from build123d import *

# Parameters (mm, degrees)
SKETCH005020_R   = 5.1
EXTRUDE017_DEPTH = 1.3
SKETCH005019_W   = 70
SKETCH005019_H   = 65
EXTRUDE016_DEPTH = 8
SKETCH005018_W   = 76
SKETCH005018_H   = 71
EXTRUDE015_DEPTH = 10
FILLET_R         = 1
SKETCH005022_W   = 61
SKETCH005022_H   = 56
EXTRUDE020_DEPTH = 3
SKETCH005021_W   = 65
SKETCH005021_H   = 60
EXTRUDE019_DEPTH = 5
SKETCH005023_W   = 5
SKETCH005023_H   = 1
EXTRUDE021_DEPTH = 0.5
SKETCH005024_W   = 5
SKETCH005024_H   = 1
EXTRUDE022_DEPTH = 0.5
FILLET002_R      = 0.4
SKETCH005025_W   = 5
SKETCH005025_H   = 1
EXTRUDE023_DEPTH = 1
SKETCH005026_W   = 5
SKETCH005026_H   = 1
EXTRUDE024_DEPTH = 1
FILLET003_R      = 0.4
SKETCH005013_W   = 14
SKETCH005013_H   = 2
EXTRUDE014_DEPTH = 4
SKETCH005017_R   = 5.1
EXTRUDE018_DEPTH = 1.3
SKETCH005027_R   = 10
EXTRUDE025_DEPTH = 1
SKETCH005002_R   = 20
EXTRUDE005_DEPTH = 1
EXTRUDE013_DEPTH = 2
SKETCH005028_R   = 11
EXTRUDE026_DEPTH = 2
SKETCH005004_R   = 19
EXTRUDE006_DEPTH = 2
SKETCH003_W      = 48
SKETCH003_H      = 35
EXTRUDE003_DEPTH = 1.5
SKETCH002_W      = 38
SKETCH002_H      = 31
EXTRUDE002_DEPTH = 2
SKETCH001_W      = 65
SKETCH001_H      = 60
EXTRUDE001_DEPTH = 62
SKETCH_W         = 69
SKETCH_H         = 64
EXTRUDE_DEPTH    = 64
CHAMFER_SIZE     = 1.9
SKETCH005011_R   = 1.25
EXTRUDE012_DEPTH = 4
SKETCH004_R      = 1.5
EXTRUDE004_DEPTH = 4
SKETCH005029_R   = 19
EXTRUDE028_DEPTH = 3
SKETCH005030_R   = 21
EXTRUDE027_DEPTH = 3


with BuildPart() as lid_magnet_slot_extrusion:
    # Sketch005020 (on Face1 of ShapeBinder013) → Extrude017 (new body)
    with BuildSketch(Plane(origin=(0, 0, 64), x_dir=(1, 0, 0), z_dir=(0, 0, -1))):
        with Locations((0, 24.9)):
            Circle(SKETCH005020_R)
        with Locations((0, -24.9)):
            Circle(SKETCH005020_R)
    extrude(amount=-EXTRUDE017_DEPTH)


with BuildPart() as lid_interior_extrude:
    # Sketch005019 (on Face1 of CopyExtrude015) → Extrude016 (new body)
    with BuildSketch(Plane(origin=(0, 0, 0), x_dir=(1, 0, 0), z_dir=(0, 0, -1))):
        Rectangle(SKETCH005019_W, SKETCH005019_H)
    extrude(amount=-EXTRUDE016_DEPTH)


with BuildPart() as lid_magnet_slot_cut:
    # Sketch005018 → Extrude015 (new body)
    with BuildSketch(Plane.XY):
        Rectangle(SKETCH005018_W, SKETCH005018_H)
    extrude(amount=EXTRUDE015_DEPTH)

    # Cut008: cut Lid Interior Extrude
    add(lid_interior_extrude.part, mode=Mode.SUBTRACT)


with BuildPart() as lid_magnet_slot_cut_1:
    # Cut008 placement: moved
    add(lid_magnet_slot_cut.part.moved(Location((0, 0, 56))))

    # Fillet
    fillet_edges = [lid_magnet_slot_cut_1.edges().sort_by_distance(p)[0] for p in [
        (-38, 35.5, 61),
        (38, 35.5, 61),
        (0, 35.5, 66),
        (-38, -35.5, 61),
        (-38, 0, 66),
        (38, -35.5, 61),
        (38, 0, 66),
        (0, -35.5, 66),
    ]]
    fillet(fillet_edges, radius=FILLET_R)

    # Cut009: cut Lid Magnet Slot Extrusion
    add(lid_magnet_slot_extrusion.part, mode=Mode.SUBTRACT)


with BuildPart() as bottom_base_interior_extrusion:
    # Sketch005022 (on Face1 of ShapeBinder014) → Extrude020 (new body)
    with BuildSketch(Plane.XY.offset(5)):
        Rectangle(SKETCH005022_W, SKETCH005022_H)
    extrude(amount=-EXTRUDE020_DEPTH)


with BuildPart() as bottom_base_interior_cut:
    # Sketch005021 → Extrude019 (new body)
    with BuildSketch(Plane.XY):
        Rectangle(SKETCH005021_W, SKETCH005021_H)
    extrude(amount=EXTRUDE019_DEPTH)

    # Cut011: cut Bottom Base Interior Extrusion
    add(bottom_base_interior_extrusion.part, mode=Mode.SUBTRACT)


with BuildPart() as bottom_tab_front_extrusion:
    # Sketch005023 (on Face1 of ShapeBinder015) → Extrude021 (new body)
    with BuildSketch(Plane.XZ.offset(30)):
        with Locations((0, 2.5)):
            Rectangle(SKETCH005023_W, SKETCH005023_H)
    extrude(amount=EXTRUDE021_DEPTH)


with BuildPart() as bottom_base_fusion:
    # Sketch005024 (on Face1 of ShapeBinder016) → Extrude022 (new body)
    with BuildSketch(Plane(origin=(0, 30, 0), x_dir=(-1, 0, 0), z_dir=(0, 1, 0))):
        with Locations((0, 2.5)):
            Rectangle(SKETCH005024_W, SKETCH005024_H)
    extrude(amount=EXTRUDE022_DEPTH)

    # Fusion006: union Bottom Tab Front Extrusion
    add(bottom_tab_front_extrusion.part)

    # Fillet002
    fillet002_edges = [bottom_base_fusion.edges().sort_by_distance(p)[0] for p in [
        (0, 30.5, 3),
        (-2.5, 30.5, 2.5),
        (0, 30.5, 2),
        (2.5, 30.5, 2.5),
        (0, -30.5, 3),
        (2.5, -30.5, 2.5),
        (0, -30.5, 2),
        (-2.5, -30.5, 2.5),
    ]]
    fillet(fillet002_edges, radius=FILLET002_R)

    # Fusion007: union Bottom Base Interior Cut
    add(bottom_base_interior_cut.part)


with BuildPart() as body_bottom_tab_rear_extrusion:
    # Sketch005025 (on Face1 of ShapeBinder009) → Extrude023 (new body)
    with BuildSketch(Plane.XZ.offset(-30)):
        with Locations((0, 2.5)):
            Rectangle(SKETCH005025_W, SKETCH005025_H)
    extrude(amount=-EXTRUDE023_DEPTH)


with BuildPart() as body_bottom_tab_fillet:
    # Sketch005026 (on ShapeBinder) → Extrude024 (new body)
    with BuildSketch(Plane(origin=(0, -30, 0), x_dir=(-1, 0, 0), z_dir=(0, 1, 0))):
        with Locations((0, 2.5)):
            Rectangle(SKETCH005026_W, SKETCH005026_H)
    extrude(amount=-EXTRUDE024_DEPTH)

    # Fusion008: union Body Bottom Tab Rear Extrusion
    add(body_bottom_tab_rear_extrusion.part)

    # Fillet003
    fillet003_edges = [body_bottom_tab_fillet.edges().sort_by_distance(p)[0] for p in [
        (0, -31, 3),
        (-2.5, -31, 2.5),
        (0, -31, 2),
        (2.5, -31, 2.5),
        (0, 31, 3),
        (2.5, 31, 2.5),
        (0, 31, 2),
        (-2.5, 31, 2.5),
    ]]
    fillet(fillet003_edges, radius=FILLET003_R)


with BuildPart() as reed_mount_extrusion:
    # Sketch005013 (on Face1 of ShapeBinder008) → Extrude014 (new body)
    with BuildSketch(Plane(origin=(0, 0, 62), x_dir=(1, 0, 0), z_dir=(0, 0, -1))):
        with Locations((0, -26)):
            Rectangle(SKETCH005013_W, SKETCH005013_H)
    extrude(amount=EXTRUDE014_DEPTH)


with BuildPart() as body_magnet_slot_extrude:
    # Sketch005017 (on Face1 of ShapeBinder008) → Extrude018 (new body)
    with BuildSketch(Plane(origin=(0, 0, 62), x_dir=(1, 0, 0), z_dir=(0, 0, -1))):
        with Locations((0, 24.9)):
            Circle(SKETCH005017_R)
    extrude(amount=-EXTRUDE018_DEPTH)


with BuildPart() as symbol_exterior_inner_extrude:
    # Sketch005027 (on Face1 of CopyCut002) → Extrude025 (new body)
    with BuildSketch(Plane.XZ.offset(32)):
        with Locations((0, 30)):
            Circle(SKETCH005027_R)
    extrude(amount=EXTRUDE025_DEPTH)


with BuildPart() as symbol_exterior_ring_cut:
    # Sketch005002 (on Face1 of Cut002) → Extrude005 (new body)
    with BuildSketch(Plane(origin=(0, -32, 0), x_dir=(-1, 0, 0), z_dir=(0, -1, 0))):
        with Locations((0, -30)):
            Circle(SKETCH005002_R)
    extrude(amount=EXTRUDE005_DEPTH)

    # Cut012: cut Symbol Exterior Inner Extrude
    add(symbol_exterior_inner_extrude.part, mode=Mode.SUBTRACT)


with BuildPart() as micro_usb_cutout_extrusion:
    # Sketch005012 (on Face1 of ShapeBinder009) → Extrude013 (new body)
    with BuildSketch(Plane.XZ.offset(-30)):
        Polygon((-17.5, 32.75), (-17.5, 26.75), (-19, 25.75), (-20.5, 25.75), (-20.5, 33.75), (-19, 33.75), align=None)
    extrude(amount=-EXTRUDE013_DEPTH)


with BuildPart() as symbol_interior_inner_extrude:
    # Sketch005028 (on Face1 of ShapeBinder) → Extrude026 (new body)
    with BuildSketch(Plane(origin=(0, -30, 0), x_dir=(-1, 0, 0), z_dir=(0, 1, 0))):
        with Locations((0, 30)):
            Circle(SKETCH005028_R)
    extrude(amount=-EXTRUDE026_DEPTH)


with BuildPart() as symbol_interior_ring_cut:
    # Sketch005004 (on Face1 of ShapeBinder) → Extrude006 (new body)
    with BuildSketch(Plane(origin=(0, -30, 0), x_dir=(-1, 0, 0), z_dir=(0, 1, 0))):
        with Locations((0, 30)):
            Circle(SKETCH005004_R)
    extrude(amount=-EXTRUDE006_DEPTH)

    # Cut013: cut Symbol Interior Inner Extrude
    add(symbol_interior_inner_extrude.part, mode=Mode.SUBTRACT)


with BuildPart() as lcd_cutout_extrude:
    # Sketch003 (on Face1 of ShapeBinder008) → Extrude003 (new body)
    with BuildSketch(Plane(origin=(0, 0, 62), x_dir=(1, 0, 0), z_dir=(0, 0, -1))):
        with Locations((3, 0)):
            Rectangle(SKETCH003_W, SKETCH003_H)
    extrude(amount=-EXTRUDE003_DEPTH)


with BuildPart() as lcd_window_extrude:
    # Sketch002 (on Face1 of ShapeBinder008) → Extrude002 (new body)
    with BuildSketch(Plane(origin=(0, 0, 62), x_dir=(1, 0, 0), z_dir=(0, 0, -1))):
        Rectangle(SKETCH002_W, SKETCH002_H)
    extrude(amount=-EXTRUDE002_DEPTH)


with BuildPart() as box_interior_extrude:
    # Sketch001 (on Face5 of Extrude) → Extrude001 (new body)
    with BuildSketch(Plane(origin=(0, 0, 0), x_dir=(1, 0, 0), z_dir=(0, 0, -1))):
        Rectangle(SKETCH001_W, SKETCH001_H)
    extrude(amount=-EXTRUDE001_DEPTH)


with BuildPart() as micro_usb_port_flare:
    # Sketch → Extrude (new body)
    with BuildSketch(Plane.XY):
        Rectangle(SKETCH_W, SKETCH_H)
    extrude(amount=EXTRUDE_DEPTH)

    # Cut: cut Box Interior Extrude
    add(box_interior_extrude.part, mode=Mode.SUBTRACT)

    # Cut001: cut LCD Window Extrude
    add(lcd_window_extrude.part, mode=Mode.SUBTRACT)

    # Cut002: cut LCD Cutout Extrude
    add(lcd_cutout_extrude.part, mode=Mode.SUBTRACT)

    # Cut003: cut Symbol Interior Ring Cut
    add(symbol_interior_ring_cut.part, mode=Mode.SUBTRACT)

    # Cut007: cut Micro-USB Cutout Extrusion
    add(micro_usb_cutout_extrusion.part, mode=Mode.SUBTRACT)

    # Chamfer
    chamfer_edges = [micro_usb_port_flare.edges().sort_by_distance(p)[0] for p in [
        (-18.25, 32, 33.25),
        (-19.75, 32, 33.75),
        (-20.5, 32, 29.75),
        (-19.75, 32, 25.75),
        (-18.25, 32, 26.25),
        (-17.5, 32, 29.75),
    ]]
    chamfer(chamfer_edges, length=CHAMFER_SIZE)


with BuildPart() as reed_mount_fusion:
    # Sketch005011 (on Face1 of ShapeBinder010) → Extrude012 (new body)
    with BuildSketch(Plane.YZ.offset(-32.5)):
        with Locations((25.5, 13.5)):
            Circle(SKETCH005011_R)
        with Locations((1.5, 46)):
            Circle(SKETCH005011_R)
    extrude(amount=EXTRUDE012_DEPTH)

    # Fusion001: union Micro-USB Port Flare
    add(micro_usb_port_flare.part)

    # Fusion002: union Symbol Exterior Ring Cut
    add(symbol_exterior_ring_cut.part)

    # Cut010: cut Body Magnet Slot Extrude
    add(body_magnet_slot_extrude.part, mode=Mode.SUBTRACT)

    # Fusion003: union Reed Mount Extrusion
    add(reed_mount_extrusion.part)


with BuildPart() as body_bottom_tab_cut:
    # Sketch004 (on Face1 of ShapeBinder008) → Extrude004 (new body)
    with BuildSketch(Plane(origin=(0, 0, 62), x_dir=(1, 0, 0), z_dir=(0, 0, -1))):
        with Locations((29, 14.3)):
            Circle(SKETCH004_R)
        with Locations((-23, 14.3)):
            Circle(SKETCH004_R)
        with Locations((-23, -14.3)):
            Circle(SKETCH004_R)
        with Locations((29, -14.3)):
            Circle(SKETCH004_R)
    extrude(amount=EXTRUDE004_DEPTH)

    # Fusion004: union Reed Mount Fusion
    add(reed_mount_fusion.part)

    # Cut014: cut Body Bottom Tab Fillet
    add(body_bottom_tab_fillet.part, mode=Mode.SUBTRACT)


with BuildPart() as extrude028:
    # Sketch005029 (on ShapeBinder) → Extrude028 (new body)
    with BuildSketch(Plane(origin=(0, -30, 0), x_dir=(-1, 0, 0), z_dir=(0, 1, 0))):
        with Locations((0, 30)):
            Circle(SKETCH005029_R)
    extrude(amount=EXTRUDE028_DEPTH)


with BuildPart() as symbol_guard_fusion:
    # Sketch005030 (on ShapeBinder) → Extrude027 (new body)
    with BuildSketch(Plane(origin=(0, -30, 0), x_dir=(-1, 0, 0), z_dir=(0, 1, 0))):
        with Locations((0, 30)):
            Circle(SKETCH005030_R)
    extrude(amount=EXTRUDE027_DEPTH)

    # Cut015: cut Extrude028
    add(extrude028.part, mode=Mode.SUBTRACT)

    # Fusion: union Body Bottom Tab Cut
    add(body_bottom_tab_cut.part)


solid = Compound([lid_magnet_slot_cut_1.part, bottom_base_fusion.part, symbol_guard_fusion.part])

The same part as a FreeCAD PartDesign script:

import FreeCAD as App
import Part
import Sketcher


def edges_at(feature, points):
    """Names of the edges that pass closest to the given points."""
    edges = feature.Shape.Edges
    near = lambda p: min(range(len(edges)), key=lambda i: edges[i].distToShape(Part.Vertex(*p))[0])
    return sorted({f"Edge{near(p) + 1}" for p in points})

doc = App.newDocument("Part")
body = doc.addObject("PartDesign::Body", "Body")
body.AllowCompound = True

# Sketch on XY plane
sketch1 = body.newObject("Sketcher::SketchObject", "Sketch")
sketch1.AttachmentSupport = (doc.getObject("XY_Plane"), [""])
sketch1.MapMode = "FlatFace"
sketch1.AttachmentOffset = App.Placement(App.Vector(0, 0, 64), App.Rotation())
sketch1.addGeometry([
    Part.Circle(App.Vector(0, -24.9, 0), App.Vector(0, 0, 1), 5.1),
    Part.Circle(App.Vector(0, 24.9, 0), App.Vector(0, 0, 1), 5.1),
], False)
sketch1.addConstraint([
    Sketcher.Constraint("Equal", 0, 1),
    Sketcher.Constraint("Symmetric", 0, 3, 1, 3, -1, 1),
    Sketcher.Constraint("PointOnObject", 0, 3, -2),
    Sketcher.Constraint("Diameter", 0, 10.2),
    Sketcher.Constraint("DistanceY", 0, 3, -1, 1, 24.9),
])
pad1 = body.newObject("PartDesign::Pad", "Pad")
pad1.Profile = sketch1
pad1.Length = 1.3
body2 = doc.addObject("PartDesign::Body", "Body001")

# Sketch on XY plane
sketch2 = body2.newObject("Sketcher::SketchObject", "Sketch001")
sketch2.AttachmentSupport = (doc.getObject("XY_Plane001"), [""])
sketch2.MapMode = "FlatFace"
sketch2.addGeometry([
    Part.LineSegment(App.Vector(-35, -32.5, 0), App.Vector(-35, 32.5, 0)),
    Part.LineSegment(App.Vector(-35, 32.5, 0), App.Vector(35, 32.5, 0)),
    Part.LineSegment(App.Vector(35, 32.5, 0), App.Vector(35, -32.5, 0)),
    Part.LineSegment(App.Vector(35, -32.5, 0), App.Vector(-35, -32.5, 0)),
], False)
sketch2.addConstraint([
    Sketcher.Constraint("Coincident", 0, 2, 1, 1),
    Sketcher.Constraint("Coincident", 1, 2, 2, 1),
    Sketcher.Constraint("Coincident", 2, 2, 3, 1),
    Sketcher.Constraint("Coincident", 3, 2, 0, 1),
    Sketcher.Constraint("Vertical", 0),
    Sketcher.Constraint("Horizontal", 1),
    Sketcher.Constraint("Vertical", 2),
    Sketcher.Constraint("Horizontal", 3),
    Sketcher.Constraint("Symmetric", 0, 2, 2, 2, -1, 1),
    Sketcher.Constraint("DistanceX", 1, 1, 1, 2, 70.0),
    Sketcher.Constraint("DistanceY", 0, 1, 0, 2, 65.0),
])
pad2 = body2.newObject("PartDesign::Pad", "Pad001")
pad2.Profile = sketch2
pad2.Length = 8
body3 = doc.addObject("PartDesign::Body", "Body002")

# Sketch on XY plane
sketch3 = body3.newObject("Sketcher::SketchObject", "Sketch002")
sketch3.AttachmentSupport = (doc.getObject("XY_Plane002"), [""])
sketch3.MapMode = "FlatFace"
sketch3.addGeometry([
    Part.LineSegment(App.Vector(-38, 35.5, 0), App.Vector(-38, -35.5, 0)),
    Part.LineSegment(App.Vector(-38, -35.5, 0), App.Vector(38, -35.5, 0)),
    Part.LineSegment(App.Vector(38, -35.5, 0), App.Vector(38, 35.5, 0)),
    Part.LineSegment(App.Vector(38, 35.5, 0), App.Vector(-38, 35.5, 0)),
], False)
sketch3.addConstraint([
    Sketcher.Constraint("Coincident", 0, 2, 1, 1),
    Sketcher.Constraint("Coincident", 1, 2, 2, 1),
    Sketcher.Constraint("Coincident", 2, 2, 3, 1),
    Sketcher.Constraint("Coincident", 3, 2, 0, 1),
    Sketcher.Constraint("Vertical", 0),
    Sketcher.Constraint("Horizontal", 1),
    Sketcher.Constraint("Vertical", 2),
    Sketcher.Constraint("Horizontal", 3),
    Sketcher.Constraint("Symmetric", 0, 2, 2, 2, -1, 1),
    Sketcher.Constraint("DistanceX", 1, 1, 1, 2, 76.0),
    Sketcher.Constraint("DistanceY", 0, 2, 0, 1, 71.0),
])
pad3 = body3.newObject("PartDesign::Pad", "Pad002")
pad3.Profile = sketch3
pad3.Length = 10
doc.recompute()

boolean = body3.newObject("PartDesign::Boolean", "Boolean")
boolean.Type = "Cut"
boolean.addObjects([body2])
body4 = doc.addObject("PartDesign::Body", "Body003")
doc.recompute()

body3.Placement = App.Placement(App.Vector(0, 0, 56), App.Rotation(App.Vector(0, 0, 1), 0))
boolean2 = body4.newObject("PartDesign::Boolean", "Boolean001")
boolean2.Type = "Fuse"
boolean2.addObjects([body3])
doc.recompute()

fillet = body4.newObject("PartDesign::Fillet", "Fillet")
fillet.Base = (boolean2, edges_at(boolean2, [
    (-38, 35.5, 61),
    (38, 35.5, 61),
    (0, 35.5, 66),
    (-38, -35.5, 61),
    (-38, 0, 66),
    (38, -35.5, 61),
    (38, 0, 66),
    (0, -35.5, 66),
]))
fillet.Radius = 1
doc.recompute()

boolean3 = body4.newObject("PartDesign::Boolean", "Boolean002")
boolean3.Type = "Cut"
boolean3.addObjects([body])
body5 = doc.addObject("PartDesign::Body", "Body004")

# Sketch on XY plane
sketch4 = body5.newObject("Sketcher::SketchObject", "Sketch003")
sketch4.AttachmentSupport = (doc.getObject("XY_Plane004"), [""])
sketch4.MapMode = "FlatFace"
sketch4.AttachmentOffset = App.Placement(App.Vector(0, 0, 5), App.Rotation())
sketch4.addGeometry([
    Part.LineSegment(App.Vector(-30.5, 28, 0), App.Vector(-30.5, -28, 0)),
    Part.LineSegment(App.Vector(-30.5, -28, 0), App.Vector(30.5, -28, 0)),
    Part.LineSegment(App.Vector(30.5, -28, 0), App.Vector(30.5, 28, 0)),
    Part.LineSegment(App.Vector(30.5, 28, 0), App.Vector(-30.5, 28, 0)),
], False)
sketch4.addConstraint([
    Sketcher.Constraint("Coincident", 0, 2, 1, 1),
    Sketcher.Constraint("Coincident", 1, 2, 2, 1),
    Sketcher.Constraint("Coincident", 2, 2, 3, 1),
    Sketcher.Constraint("Coincident", 3, 2, 0, 1),
    Sketcher.Constraint("Vertical", 0),
    Sketcher.Constraint("Horizontal", 1),
    Sketcher.Constraint("Vertical", 2),
    Sketcher.Constraint("Horizontal", 3),
    Sketcher.Constraint("Symmetric", 0, 2, 2, 2, -1, 1),
    Sketcher.Constraint("DistanceX", 1, 1, 1, 2, 61.0),
    Sketcher.Constraint("DistanceY", 0, 2, 0, 1, 56.0),
])
pad4 = body5.newObject("PartDesign::Pad", "Pad003")
pad4.Profile = sketch4
pad4.Length = 3
pad4.Reversed = True
body6 = doc.addObject("PartDesign::Body", "Body005")

# Sketch on XY plane
sketch5 = body6.newObject("Sketcher::SketchObject", "Sketch004")
sketch5.AttachmentSupport = (doc.getObject("XY_Plane005"), [""])
sketch5.MapMode = "FlatFace"
sketch5.addGeometry([
    Part.LineSegment(App.Vector(-32.5, 30, 0), App.Vector(-32.5, -30, 0)),
    Part.LineSegment(App.Vector(-32.5, -30, 0), App.Vector(32.5, -30, 0)),
    Part.LineSegment(App.Vector(32.5, -30, 0), App.Vector(32.5, 30, 0)),
    Part.LineSegment(App.Vector(32.5, 30, 0), App.Vector(-32.5, 30, 0)),
], False)
sketch5.addConstraint([
    Sketcher.Constraint("Coincident", 0, 2, 1, 1),
    Sketcher.Constraint("Coincident", 1, 2, 2, 1),
    Sketcher.Constraint("Coincident", 2, 2, 3, 1),
    Sketcher.Constraint("Coincident", 3, 2, 0, 1),
    Sketcher.Constraint("Vertical", 0),
    Sketcher.Constraint("Horizontal", 1),
    Sketcher.Constraint("Vertical", 2),
    Sketcher.Constraint("Horizontal", 3),
    Sketcher.Constraint("Symmetric", 0, 2, 2, 2, -1, 1),
    Sketcher.Constraint("DistanceX", 1, 1, 1, 2, 65.0),
    Sketcher.Constraint("DistanceY", 0, 2, 0, 1, 60.0),
])
pad5 = body6.newObject("PartDesign::Pad", "Pad004")
pad5.Profile = sketch5
pad5.Length = 5
doc.recompute()

boolean4 = body6.newObject("PartDesign::Boolean", "Boolean003")
boolean4.Type = "Cut"
boolean4.addObjects([body5])
body7 = doc.addObject("PartDesign::Body", "Body006")

# Sketch on XZ plane
sketch6 = body7.newObject("Sketcher::SketchObject", "Sketch005")
sketch6.AttachmentSupport = (doc.getObject("XZ_Plane006"), [""])
sketch6.MapMode = "FlatFace"
sketch6.AttachmentOffset = App.Placement(App.Vector(0, 0, 30), App.Rotation())
sketch6.addGeometry([
    Part.LineSegment(App.Vector(-2.5, 3, 0), App.Vector(-2.5, 2, 0)),
    Part.LineSegment(App.Vector(-2.5, 2, 0), App.Vector(2.5, 2, 0)),
    Part.LineSegment(App.Vector(2.5, 2, 0), App.Vector(2.5, 3, 0)),
    Part.LineSegment(App.Vector(2.5, 3, 0), App.Vector(-2.5, 3, 0)),
], False)
sketch6.addConstraint([
    Sketcher.Constraint("Coincident", 0, 2, 1, 1),
    Sketcher.Constraint("Coincident", 1, 2, 2, 1),
    Sketcher.Constraint("Coincident", 2, 2, 3, 1),
    Sketcher.Constraint("Coincident", 3, 2, 0, 1),
    Sketcher.Constraint("Vertical", 0),
    Sketcher.Constraint("Horizontal", 1),
    Sketcher.Constraint("Vertical", 2),
    Sketcher.Constraint("Horizontal", 3),
    Sketcher.Constraint("DistanceX", 1, 1, 1, 2, 5.0),
    Sketcher.Constraint("DistanceY", 0, 2, 0, 1, 1.0),
    Sketcher.Constraint("DistanceY", -1, 1, 0, 2, 2.0),
    Sketcher.Constraint("DistanceX", 0, 2, -1, 1, 2.5),
])
pad6 = body7.newObject("PartDesign::Pad", "Pad005")
pad6.Profile = sketch6
pad6.Length = 0.5
body8 = doc.addObject("PartDesign::Body", "Body007")
body8.AllowCompound = True

# Sketch on XZ plane
sketch7 = body8.newObject("Sketcher::SketchObject", "Sketch006")
sketch7.AttachmentSupport = (doc.getObject("XZ_Plane007"), [""])
sketch7.MapMode = "FlatFace"
sketch7.AttachmentOffset = App.Placement(App.Vector(0, 0, -30), App.Rotation())
sketch7.addGeometry([
    Part.LineSegment(App.Vector(2.5, 3, 0), App.Vector(2.5, 2, 0)),
    Part.LineSegment(App.Vector(2.5, 2, 0), App.Vector(-2.5, 2, 0)),
    Part.LineSegment(App.Vector(-2.5, 2, 0), App.Vector(-2.5, 3, 0)),
    Part.LineSegment(App.Vector(-2.5, 3, 0), App.Vector(2.5, 3, 0)),
], False)
sketch7.addConstraint([
    Sketcher.Constraint("Coincident", 0, 2, 1, 1),
    Sketcher.Constraint("Coincident", 1, 2, 2, 1),
    Sketcher.Constraint("Coincident", 2, 2, 3, 1),
    Sketcher.Constraint("Coincident", 3, 2, 0, 1),
    Sketcher.Constraint("Vertical", 0),
    Sketcher.Constraint("Horizontal", 1),
    Sketcher.Constraint("Vertical", 2),
    Sketcher.Constraint("Horizontal", 3),
    Sketcher.Constraint("DistanceX", 1, 2, 1, 1, 5.0),
    Sketcher.Constraint("DistanceY", 0, 2, 0, 1, 1.0),
    Sketcher.Constraint("DistanceY", -1, 1, 0, 2, 2.0),
    Sketcher.Constraint("DistanceX", -1, 1, 0, 2, 2.5),
])
pad7 = body8.newObject("PartDesign::Pad", "Pad006")
pad7.Profile = sketch7
pad7.Length = 0.5
pad7.Reversed = True
doc.recompute()

boolean5 = body8.newObject("PartDesign::Boolean", "Boolean004")
boolean5.Type = "Fuse"
boolean5.addObjects([body7])
doc.recompute()

fillet2 = body8.newObject("PartDesign::Fillet", "Fillet001")
fillet2.Base = (boolean5, edges_at(boolean5, [
    (0, 30.5, 3),
    (-2.5, 30.5, 2.5),
    (0, 30.5, 2),
    (2.5, 30.5, 2.5),
    (0, -30.5, 3),
    (2.5, -30.5, 2.5),
    (0, -30.5, 2),
    (-2.5, -30.5, 2.5),
]))
fillet2.Radius = 0.4
doc.recompute()

boolean6 = body8.newObject("PartDesign::Boolean", "Boolean005")
boolean6.Type = "Fuse"
boolean6.addObjects([body6])
body9 = doc.addObject("PartDesign::Body", "Body008")

# Sketch on XZ plane
sketch8 = body9.newObject("Sketcher::SketchObject", "Sketch007")
sketch8.AttachmentSupport = (doc.getObject("XZ_Plane008"), [""])
sketch8.MapMode = "FlatFace"
sketch8.AttachmentOffset = App.Placement(App.Vector(0, 0, -30), App.Rotation())
sketch8.addGeometry([
    Part.LineSegment(App.Vector(-2.5, 3, 0), App.Vector(-2.5, 2, 0)),
    Part.LineSegment(App.Vector(-2.5, 2, 0), App.Vector(2.5, 2, 0)),
    Part.LineSegment(App.Vector(2.5, 2, 0), App.Vector(2.5, 3, 0)),
    Part.LineSegment(App.Vector(2.5, 3, 0), App.Vector(-2.5, 3, 0)),
], False)
sketch8.addConstraint([
    Sketcher.Constraint("Coincident", 0, 2, 1, 1),
    Sketcher.Constraint("Coincident", 1, 2, 2, 1),
    Sketcher.Constraint("Coincident", 2, 2, 3, 1),
    Sketcher.Constraint("Coincident", 3, 2, 0, 1),
    Sketcher.Constraint("Vertical", 0),
    Sketcher.Constraint("Horizontal", 1),
    Sketcher.Constraint("Vertical", 2),
    Sketcher.Constraint("Horizontal", 3),
    Sketcher.Constraint("DistanceX", 1, 1, 1, 2, 5.0),
    Sketcher.Constraint("DistanceY", 0, 2, 0, 1, 1.0),
    Sketcher.Constraint("DistanceY", -1, 1, 0, 2, 2.0),
    Sketcher.Constraint("DistanceX", 0, 2, -1, 1, 2.5),
])
pad8 = body9.newObject("PartDesign::Pad", "Pad007")
pad8.Profile = sketch8
pad8.Length = 1
pad8.Reversed = True
body10 = doc.addObject("PartDesign::Body", "Body009")
body10.AllowCompound = True

# Sketch on XZ plane
sketch9 = body10.newObject("Sketcher::SketchObject", "Sketch008")
sketch9.AttachmentSupport = (doc.getObject("XZ_Plane009"), [""])
sketch9.MapMode = "FlatFace"
sketch9.AttachmentOffset = App.Placement(App.Vector(0, 0, 30), App.Rotation())
sketch9.addGeometry([
    Part.LineSegment(App.Vector(2.5, 3, 0), App.Vector(2.5, 2, 0)),
    Part.LineSegment(App.Vector(2.5, 2, 0), App.Vector(-2.5, 2, 0)),
    Part.LineSegment(App.Vector(-2.5, 2, 0), App.Vector(-2.5, 3, 0)),
    Part.LineSegment(App.Vector(-2.5, 3, 0), App.Vector(2.5, 3, 0)),
], False)
sketch9.addConstraint([
    Sketcher.Constraint("Coincident", 0, 2, 1, 1),
    Sketcher.Constraint("Coincident", 1, 2, 2, 1),
    Sketcher.Constraint("Coincident", 2, 2, 3, 1),
    Sketcher.Constraint("Coincident", 3, 2, 0, 1),
    Sketcher.Constraint("Vertical", 0),
    Sketcher.Constraint("Horizontal", 1),
    Sketcher.Constraint("Vertical", 2),
    Sketcher.Constraint("Horizontal", 3),
    Sketcher.Constraint("DistanceX", 1, 2, 1, 1, 5.0),
    Sketcher.Constraint("DistanceY", 0, 2, 0, 1, 1.0),
    Sketcher.Constraint("DistanceY", -1, 1, 0, 2, 2.0),
    Sketcher.Constraint("DistanceX", -1, 1, 0, 2, 2.5),
])
pad9 = body10.newObject("PartDesign::Pad", "Pad008")
pad9.Profile = sketch9
pad9.Length = 1
doc.recompute()

boolean7 = body10.newObject("PartDesign::Boolean", "Boolean006")
boolean7.Type = "Fuse"
boolean7.addObjects([body9])
doc.recompute()

fillet3 = body10.newObject("PartDesign::Fillet", "Fillet002")
fillet3.Base = (boolean7, edges_at(boolean7, [
    (0, -31, 3),
    (-2.5, -31, 2.5),
    (0, -31, 2),
    (2.5, -31, 2.5),
    (0, 31, 3),
    (2.5, 31, 2.5),
    (0, 31, 2),
    (-2.5, 31, 2.5),
]))
fillet3.Radius = 0.4
body11 = doc.addObject("PartDesign::Body", "Body010")

# Sketch on XY plane
sketch10 = body11.newObject("Sketcher::SketchObject", "Sketch009")
sketch10.AttachmentSupport = (doc.getObject("XY_Plane010"), [""])
sketch10.MapMode = "FlatFace"
sketch10.AttachmentOffset = App.Placement(App.Vector(0, 0, 62), App.Rotation())
sketch10.addGeometry([
    Part.LineSegment(App.Vector(-7, 25, 0), App.Vector(-7, 27, 0)),
    Part.LineSegment(App.Vector(-7, 27, 0), App.Vector(7, 27, 0)),
    Part.LineSegment(App.Vector(7, 27, 0), App.Vector(7, 25, 0)),
    Part.LineSegment(App.Vector(7, 25, 0), App.Vector(-7, 25, 0)),
], False)
sketch10.addConstraint([
    Sketcher.Constraint("Coincident", 0, 2, 1, 1),
    Sketcher.Constraint("Coincident", 1, 2, 2, 1),
    Sketcher.Constraint("Coincident", 2, 2, 3, 1),
    Sketcher.Constraint("Coincident", 3, 2, 0, 1),
    Sketcher.Constraint("Vertical", 0),
    Sketcher.Constraint("Horizontal", 1),
    Sketcher.Constraint("Vertical", 2),
    Sketcher.Constraint("Horizontal", 3),
    Sketcher.Constraint("DistanceX", 1, 1, 1, 2, 14.0),
    Sketcher.Constraint("DistanceY", 0, 1, 0, 2, 2.0),
    Sketcher.Constraint("DistanceX", 0, 2, -1, 1, 7.0),
    Sketcher.Constraint("DistanceY", -1, 1, 0, 2, 27.0),
])
pad10 = body11.newObject("PartDesign::Pad", "Pad009")
pad10.Profile = sketch10
pad10.Length = 4
pad10.Reversed = True
body12 = doc.addObject("PartDesign::Body", "Body011")

# Sketch on XY plane
sketch11 = body12.newObject("Sketcher::SketchObject", "Sketch010")
sketch11.AttachmentSupport = (doc.getObject("XY_Plane011"), [""])
sketch11.MapMode = "FlatFace"
sketch11.AttachmentOffset = App.Placement(App.Vector(0, 0, 62), App.Rotation())
sketch11.addGeometry(Part.Circle(App.Vector(0, -24.9, 0), App.Vector(0, 0, 1), 5.1), False)
sketch11.addConstraint([
    Sketcher.Constraint("PointOnObject", 0, 3, -2),
    Sketcher.Constraint("Diameter", 0, 10.2),
    Sketcher.Constraint("DistanceY", 0, 3, -1, 1, 24.9),
])
pad11 = body12.newObject("PartDesign::Pad", "Pad010")
pad11.Profile = sketch11
pad11.Length = 1.3
body13 = doc.addObject("PartDesign::Body", "Body012")

# Sketch on XZ plane
sketch12 = body13.newObject("Sketcher::SketchObject", "Sketch011")
sketch12.AttachmentSupport = (doc.getObject("XZ_Plane012"), [""])
sketch12.MapMode = "FlatFace"
sketch12.AttachmentOffset = App.Placement(App.Vector(0, 0, 32), App.Rotation())
sketch12.addGeometry(Part.Circle(App.Vector(0, 30, 0), App.Vector(0, 0, 1), 10), False)
sketch12.addConstraint([
    Sketcher.Constraint("PointOnObject", 0, 3, -2),
    Sketcher.Constraint("Diameter", 0, 20.0),
    Sketcher.Constraint("DistanceY", -1, 1, 0, 3, 30.0),
])
pad12 = body13.newObject("PartDesign::Pad", "Pad011")
pad12.Profile = sketch12
pad12.Length = 1
body14 = doc.addObject("PartDesign::Body", "Body013")

# Sketch on XZ plane
sketch13 = body14.newObject("Sketcher::SketchObject", "Sketch012")
sketch13.AttachmentSupport = (doc.getObject("XZ_Plane013"), [""])
sketch13.MapMode = "FlatFace"
sketch13.AttachmentOffset = App.Placement(App.Vector(0, 0, 32), App.Rotation())
sketch13.addGeometry(Part.Circle(App.Vector(0, 30, 0), App.Vector(0, 0, 1), 20), False)
sketch13.addConstraint([
    Sketcher.Constraint("PointOnObject", 0, 3, -2),
    Sketcher.Constraint("Diameter", 0, 40.0),
    Sketcher.Constraint("DistanceY", -1, 1, 0, 3, 30.0),
])
pad13 = body14.newObject("PartDesign::Pad", "Pad012")
pad13.Profile = sketch13
pad13.Length = 1
doc.recompute()

boolean8 = body14.newObject("PartDesign::Boolean", "Boolean007")
boolean8.Type = "Cut"
boolean8.addObjects([body13])
body15 = doc.addObject("PartDesign::Body", "Body014")

# Sketch on XZ plane
sketch14 = body15.newObject("Sketcher::SketchObject", "Sketch013")
sketch14.AttachmentSupport = (doc.getObject("XZ_Plane014"), [""])
sketch14.MapMode = "FlatFace"
sketch14.AttachmentOffset = App.Placement(App.Vector(0, 0, -30), App.Rotation())
sketch14.addGeometry([
    Part.LineSegment(App.Vector(-17.5, 26.75, 0), App.Vector(-17.5, 32.75, 0)),  # 0
    Part.LineSegment(App.Vector(-17.5, 32.75, 0), App.Vector(-19, 33.75, 0)),  # 1
    Part.LineSegment(App.Vector(-19, 33.75, 0), App.Vector(-20.5, 33.75, 0)),  # 2
    Part.LineSegment(App.Vector(-20.5, 33.75, 0), App.Vector(-20.5, 25.75, 0)),  # 3
    Part.LineSegment(App.Vector(-20.5, 25.75, 0), App.Vector(-19, 25.75, 0)),  # 4
    Part.LineSegment(App.Vector(-19, 25.75, 0), App.Vector(-17.5, 26.75, 0)),  # 5
], False)
sketch14.addConstraint([
    Sketcher.Constraint("Coincident", 0, 2, 1, 1),
    Sketcher.Constraint("Coincident", 1, 2, 2, 1),
    Sketcher.Constraint("Coincident", 2, 2, 3, 1),
    Sketcher.Constraint("Coincident", 3, 2, 4, 1),
    Sketcher.Constraint("Coincident", 4, 2, 5, 1),
    Sketcher.Constraint("Coincident", 5, 2, 0, 1),
    Sketcher.Constraint("Vertical", 0),
    Sketcher.Constraint("Horizontal", 2),
    Sketcher.Constraint("Vertical", 3),
    Sketcher.Constraint("Horizontal", 4),
    Sketcher.Constraint("Vertical", 1, 2, 4, 2),
    Sketcher.Constraint("Equal", 1, 5),
    Sketcher.Constraint("DistanceY", 0, 1, 0, 2, 6.0),
    Sketcher.Constraint("DistanceY", 3, 2, 3, 1, 8.0),
    Sketcher.Constraint("DistanceX", 2, 2, 2, 1, 1.5),
    Sketcher.Constraint("DistanceX", 1, 2, -1, 1, 19.0),
    Sketcher.Constraint("DistanceX", 2, 2, 0, 2, 3.0),
    Sketcher.Constraint("DistanceY", -1, 1, 0, 2, 32.75),
])
pad14 = body15.newObject("PartDesign::Pad", "Pad013")
pad14.Profile = sketch14
pad14.Length = 2
pad14.Reversed = True
body16 = doc.addObject("PartDesign::Body", "Body015")

# Sketch on XZ plane
sketch15 = body16.newObject("Sketcher::SketchObject", "Sketch014")
sketch15.AttachmentSupport = (doc.getObject("XZ_Plane015"), [""])
sketch15.MapMode = "FlatFace"
sketch15.AttachmentOffset = App.Placement(App.Vector(0, 0, 30), App.Rotation())
sketch15.addGeometry(Part.Circle(App.Vector(0, 30, 0), App.Vector(0, 0, 1), 11), False)
sketch15.addConstraint([
    Sketcher.Constraint("PointOnObject", 0, 3, -2),
    Sketcher.Constraint("Diameter", 0, 22.0),
    Sketcher.Constraint("DistanceY", -1, 1, 0, 3, 30.0),
])
pad15 = body16.newObject("PartDesign::Pad", "Pad014")
pad15.Profile = sketch15
pad15.Length = 2
body17 = doc.addObject("PartDesign::Body", "Body016")

# Sketch on XZ plane
sketch16 = body17.newObject("Sketcher::SketchObject", "Sketch015")
sketch16.AttachmentSupport = (doc.getObject("XZ_Plane016"), [""])
sketch16.MapMode = "FlatFace"
sketch16.AttachmentOffset = App.Placement(App.Vector(0, 0, 30), App.Rotation())
sketch16.addGeometry(Part.Circle(App.Vector(0, 30, 0), App.Vector(0, 0, 1), 19), False)
sketch16.addConstraint([
    Sketcher.Constraint("PointOnObject", 0, 3, -2),
    Sketcher.Constraint("Diameter", 0, 38.0),
    Sketcher.Constraint("DistanceY", -1, 1, 0, 3, 30.0),
])
pad16 = body17.newObject("PartDesign::Pad", "Pad015")
pad16.Profile = sketch16
pad16.Length = 2
doc.recompute()

boolean9 = body17.newObject("PartDesign::Boolean", "Boolean008")
boolean9.Type = "Cut"
boolean9.addObjects([body16])
body18 = doc.addObject("PartDesign::Body", "Body017")

# Sketch on XY plane
sketch17 = body18.newObject("Sketcher::SketchObject", "Sketch016")
sketch17.AttachmentSupport = (doc.getObject("XY_Plane017"), [""])
sketch17.MapMode = "FlatFace"
sketch17.AttachmentOffset = App.Placement(App.Vector(0, 0, 62), App.Rotation())
sketch17.addGeometry([
    Part.LineSegment(App.Vector(-21, -17.5, 0), App.Vector(-21, 17.5, 0)),
    Part.LineSegment(App.Vector(-21, 17.5, 0), App.Vector(27, 17.5, 0)),
    Part.LineSegment(App.Vector(27, 17.5, 0), App.Vector(27, -17.5, 0)),
    Part.LineSegment(App.Vector(27, -17.5, 0), App.Vector(-21, -17.5, 0)),
], False)
sketch17.addConstraint([
    Sketcher.Constraint("Coincident", 0, 2, 1, 1),
    Sketcher.Constraint("Coincident", 1, 2, 2, 1),
    Sketcher.Constraint("Coincident", 2, 2, 3, 1),
    Sketcher.Constraint("Coincident", 3, 2, 0, 1),
    Sketcher.Constraint("Vertical", 0),
    Sketcher.Constraint("Horizontal", 1),
    Sketcher.Constraint("Vertical", 2),
    Sketcher.Constraint("Horizontal", 3),
    Sketcher.Constraint("DistanceX", 1, 1, 1, 2, 48.0),
    Sketcher.Constraint("DistanceY", 0, 1, 0, 2, 35.0),
    Sketcher.Constraint("DistanceX", 0, 2, -1, 1, 21.0),
    Sketcher.Constraint("DistanceY", -1, 1, 0, 2, 17.5),
])
pad17 = body18.newObject("PartDesign::Pad", "Pad016")
pad17.Profile = sketch17
pad17.Length = 1.5
body19 = doc.addObject("PartDesign::Body", "Body018")

# Sketch on XY plane
sketch18 = body19.newObject("Sketcher::SketchObject", "Sketch017")
sketch18.AttachmentSupport = (doc.getObject("XY_Plane018"), [""])
sketch18.MapMode = "FlatFace"
sketch18.AttachmentOffset = App.Placement(App.Vector(0, 0, 62), App.Rotation())
sketch18.addGeometry([
    Part.LineSegment(App.Vector(-19, -15.5, 0), App.Vector(-19, 15.5, 0)),
    Part.LineSegment(App.Vector(-19, 15.5, 0), App.Vector(19, 15.5, 0)),
    Part.LineSegment(App.Vector(19, 15.5, 0), App.Vector(19, -15.5, 0)),
    Part.LineSegment(App.Vector(19, -15.5, 0), App.Vector(-19, -15.5, 0)),
], False)
sketch18.addConstraint([
    Sketcher.Constraint("Coincident", 0, 2, 1, 1),
    Sketcher.Constraint("Coincident", 1, 2, 2, 1),
    Sketcher.Constraint("Coincident", 2, 2, 3, 1),
    Sketcher.Constraint("Coincident", 3, 2, 0, 1),
    Sketcher.Constraint("Vertical", 0),
    Sketcher.Constraint("Horizontal", 1),
    Sketcher.Constraint("Vertical", 2),
    Sketcher.Constraint("Horizontal", 3),
    Sketcher.Constraint("Symmetric", 0, 2, 2, 2, -1, 1),
    Sketcher.Constraint("DistanceX", 1, 1, 1, 2, 38.0),
    Sketcher.Constraint("DistanceY", 0, 1, 0, 2, 31.0),
])
pad18 = body19.newObject("PartDesign::Pad", "Pad017")
pad18.Profile = sketch18
pad18.Length = 2
body20 = doc.addObject("PartDesign::Body", "Body019")

# Sketch on XY plane
sketch19 = body20.newObject("Sketcher::SketchObject", "Sketch018")
sketch19.AttachmentSupport = (doc.getObject("XY_Plane019"), [""])
sketch19.MapMode = "FlatFace"
sketch19.addGeometry([
    Part.LineSegment(App.Vector(-32.5, -30, 0), App.Vector(-32.5, 30, 0)),
    Part.LineSegment(App.Vector(-32.5, 30, 0), App.Vector(32.5, 30, 0)),
    Part.LineSegment(App.Vector(32.5, 30, 0), App.Vector(32.5, -30, 0)),
    Part.LineSegment(App.Vector(32.5, -30, 0), App.Vector(-32.5, -30, 0)),
], False)
sketch19.addConstraint([
    Sketcher.Constraint("Coincident", 0, 2, 1, 1),
    Sketcher.Constraint("Coincident", 1, 2, 2, 1),
    Sketcher.Constraint("Coincident", 2, 2, 3, 1),
    Sketcher.Constraint("Coincident", 3, 2, 0, 1),
    Sketcher.Constraint("Vertical", 0),
    Sketcher.Constraint("Horizontal", 1),
    Sketcher.Constraint("Vertical", 2),
    Sketcher.Constraint("Horizontal", 3),
    Sketcher.Constraint("Symmetric", 0, 2, 2, 2, -1, 1),
    Sketcher.Constraint("DistanceX", 1, 1, 1, 2, 65.0),
    Sketcher.Constraint("DistanceY", 0, 1, 0, 2, 60.0),
])
pad19 = body20.newObject("PartDesign::Pad", "Pad018")
pad19.Profile = sketch19
pad19.Length = 62
body21 = doc.addObject("PartDesign::Body", "Body020")
body21.AllowCompound = True

# Sketch on XY plane
sketch20 = body21.newObject("Sketcher::SketchObject", "Sketch019")
sketch20.AttachmentSupport = (doc.getObject("XY_Plane020"), [""])
sketch20.MapMode = "FlatFace"
sketch20.addGeometry([
    Part.LineSegment(App.Vector(-34.5, 32, 0), App.Vector(-34.5, -32, 0)),
    Part.LineSegment(App.Vector(-34.5, -32, 0), App.Vector(34.5, -32, 0)),
    Part.LineSegment(App.Vector(34.5, -32, 0), App.Vector(34.5, 32, 0)),
    Part.LineSegment(App.Vector(34.5, 32, 0), App.Vector(-34.5, 32, 0)),
], False)
sketch20.addConstraint([
    Sketcher.Constraint("Coincident", 0, 2, 1, 1),
    Sketcher.Constraint("Coincident", 1, 2, 2, 1),
    Sketcher.Constraint("Coincident", 2, 2, 3, 1),
    Sketcher.Constraint("Coincident", 3, 2, 0, 1),
    Sketcher.Constraint("Vertical", 0),
    Sketcher.Constraint("Horizontal", 1),
    Sketcher.Constraint("Vertical", 2),
    Sketcher.Constraint("Horizontal", 3),
    Sketcher.Constraint("Symmetric", 0, 2, 2, 2, -1, 1),
    Sketcher.Constraint("DistanceX", 1, 1, 1, 2, 69.0),
    Sketcher.Constraint("DistanceY", 0, 2, 0, 1, 64.0),
])
pad20 = body21.newObject("PartDesign::Pad", "Pad019")
pad20.Profile = sketch20
pad20.Length = 64
doc.recompute()

boolean10 = body21.newObject("PartDesign::Boolean", "Boolean009")
boolean10.Type = "Cut"
boolean10.addObjects([body20])
doc.recompute()

boolean11 = body21.newObject("PartDesign::Boolean", "Boolean010")
boolean11.Type = "Cut"
boolean11.addObjects([body19])
doc.recompute()

boolean12 = body21.newObject("PartDesign::Boolean", "Boolean011")
boolean12.Type = "Cut"
boolean12.addObjects([body18])
doc.recompute()

boolean13 = body21.newObject("PartDesign::Boolean", "Boolean012")
boolean13.Type = "Cut"
boolean13.addObjects([body17])
doc.recompute()

boolean14 = body21.newObject("PartDesign::Boolean", "Boolean013")
boolean14.Type = "Cut"
boolean14.addObjects([body15])
doc.recompute()

chamfer = body21.newObject("PartDesign::Chamfer", "Chamfer")
chamfer.Base = (boolean14, edges_at(boolean14, [
    (-18.25, 32, 33.25),
    (-19.75, 32, 33.75),
    (-20.5, 32, 29.75),
    (-19.75, 32, 25.75),
    (-18.25, 32, 26.25),
    (-17.5, 32, 29.75),
]))
chamfer.Size = 1.9
body22 = doc.addObject("PartDesign::Body", "Body021")
body22.AllowCompound = True

# Sketch on YZ plane
sketch21 = body22.newObject("Sketcher::SketchObject", "Sketch020")
sketch21.AttachmentSupport = (doc.getObject("YZ_Plane021"), [""])
sketch21.MapMode = "FlatFace"
sketch21.AttachmentOffset = App.Placement(App.Vector(0, 0, -32.5), App.Rotation())
sketch21.addGeometry([
    Part.Circle(App.Vector(25.5, 13.5, 0), App.Vector(0, 0, 1), 1.25),
    Part.Circle(App.Vector(1.5, 46, 0), App.Vector(0, 0, 1), 1.25),
], False)
sketch21.addConstraint([
    Sketcher.Constraint("Equal", 0, 1),
    Sketcher.Constraint("Diameter", 0, 2.5),
    Sketcher.Constraint("DistanceY", -1, 1, 1, 3, 46.0),
    Sketcher.Constraint("DistanceX", 1, 3, 0, 3, 24.0),
    Sketcher.Constraint("DistanceX", -1, 1, 0, 3, 25.5),
    Sketcher.Constraint("DistanceY", -1, 1, 0, 3, 13.5),
])
pad21 = body22.newObject("PartDesign::Pad", "Pad020")
pad21.Profile = sketch21
pad21.Length = 4
doc.recompute()

boolean15 = body22.newObject("PartDesign::Boolean", "Boolean014")
boolean15.Type = "Fuse"
boolean15.addObjects([body21])
doc.recompute()

boolean16 = body22.newObject("PartDesign::Boolean", "Boolean015")
boolean16.Type = "Fuse"
boolean16.addObjects([body14])
doc.recompute()

boolean17 = body22.newObject("PartDesign::Boolean", "Boolean016")
boolean17.Type = "Cut"
boolean17.addObjects([body12])
doc.recompute()

boolean18 = body22.newObject("PartDesign::Boolean", "Boolean017")
boolean18.Type = "Fuse"
boolean18.addObjects([body11])
body23 = doc.addObject("PartDesign::Body", "Body022")
body23.AllowCompound = True

# Sketch on XY plane
sketch22 = body23.newObject("Sketcher::SketchObject", "Sketch021")
sketch22.AttachmentSupport = (doc.getObject("XY_Plane022"), [""])
sketch22.MapMode = "FlatFace"
sketch22.AttachmentOffset = App.Placement(App.Vector(0, 0, 62), App.Rotation())
sketch22.addGeometry([
    Part.Circle(App.Vector(29, -14.3, 0), App.Vector(0, 0, 1), 1.5),
    Part.Circle(App.Vector(-23, -14.3, 0), App.Vector(0, 0, 1), 1.5),
    Part.Circle(App.Vector(-23, 14.3, 0), App.Vector(0, 0, 1), 1.5),
    Part.Circle(App.Vector(29, 14.3, 0), App.Vector(0, 0, 1), 1.5),
], False)
sketch22.addConstraint([
    Sketcher.Constraint("Equal", 0, 1),
    Sketcher.Constraint("Equal", 1, 2),
    Sketcher.Constraint("Equal", 2, 3),
    Sketcher.Constraint("Symmetric", 1, 3, 2, 3, -1),
    Sketcher.Constraint("Symmetric", 0, 3, 3, 3, -1),
    Sketcher.Constraint("Horizontal", 0, 3, 1, 3),
    Sketcher.Constraint("Diameter", 0, 3.0),
    Sketcher.Constraint("DistanceX", -1, 1, 0, 3, 29.0),
    Sketcher.Constraint("DistanceX", 1, 3, -1, 1, 23.0),
    Sketcher.Constraint("DistanceY", 0, 3, -1, 1, 14.3),
])
pad22 = body23.newObject("PartDesign::Pad", "Pad021")
pad22.Profile = sketch22
pad22.Length = 4
pad22.Reversed = True
doc.recompute()

boolean19 = body23.newObject("PartDesign::Boolean", "Boolean018")
boolean19.Type = "Fuse"
boolean19.addObjects([body22])
doc.recompute()

boolean20 = body23.newObject("PartDesign::Boolean", "Boolean019")
boolean20.Type = "Cut"
boolean20.addObjects([body10])
body24 = doc.addObject("PartDesign::Body", "Body023")

# Sketch on XZ plane
sketch23 = body24.newObject("Sketcher::SketchObject", "Sketch022")
sketch23.AttachmentSupport = (doc.getObject("XZ_Plane023"), [""])
sketch23.MapMode = "FlatFace"
sketch23.AttachmentOffset = App.Placement(App.Vector(0, 0, 30), App.Rotation())
sketch23.addGeometry(Part.Circle(App.Vector(0, 30, 0), App.Vector(0, 0, 1), 19), False)
sketch23.addConstraint([
    Sketcher.Constraint("PointOnObject", 0, 3, -2),
    Sketcher.Constraint("Diameter", 0, 38.0),
    Sketcher.Constraint("DistanceY", -1, 1, 0, 3, 30.0),
])
pad23 = body24.newObject("PartDesign::Pad", "Pad022")
pad23.Profile = sketch23
pad23.Length = 3
pad23.Reversed = True
body25 = doc.addObject("PartDesign::Body", "Body024")

# Sketch on XZ plane
sketch24 = body25.newObject("Sketcher::SketchObject", "Sketch023")
sketch24.AttachmentSupport = (doc.getObject("XZ_Plane024"), [""])
sketch24.MapMode = "FlatFace"
sketch24.AttachmentOffset = App.Placement(App.Vector(0, 0, 30), App.Rotation())
sketch24.addGeometry(Part.Circle(App.Vector(0, 30, 0), App.Vector(0, 0, 1), 21), False)
sketch24.addConstraint([
    Sketcher.Constraint("PointOnObject", 0, 3, -2),
    Sketcher.Constraint("Diameter", 0, 42.0),
    Sketcher.Constraint("DistanceY", -1, 1, 0, 3, 30.0),
])
pad24 = body25.newObject("PartDesign::Pad", "Pad023")
pad24.Profile = sketch24
pad24.Length = 3
pad24.Reversed = True
doc.recompute()

boolean21 = body25.newObject("PartDesign::Boolean", "Boolean020")
boolean21.Type = "Cut"
boolean21.addObjects([body24])
doc.recompute()

boolean22 = body25.newObject("PartDesign::Boolean", "Boolean021")
boolean22.Type = "Fuse"
boolean22.addObjects([body23])

doc.recompute()
